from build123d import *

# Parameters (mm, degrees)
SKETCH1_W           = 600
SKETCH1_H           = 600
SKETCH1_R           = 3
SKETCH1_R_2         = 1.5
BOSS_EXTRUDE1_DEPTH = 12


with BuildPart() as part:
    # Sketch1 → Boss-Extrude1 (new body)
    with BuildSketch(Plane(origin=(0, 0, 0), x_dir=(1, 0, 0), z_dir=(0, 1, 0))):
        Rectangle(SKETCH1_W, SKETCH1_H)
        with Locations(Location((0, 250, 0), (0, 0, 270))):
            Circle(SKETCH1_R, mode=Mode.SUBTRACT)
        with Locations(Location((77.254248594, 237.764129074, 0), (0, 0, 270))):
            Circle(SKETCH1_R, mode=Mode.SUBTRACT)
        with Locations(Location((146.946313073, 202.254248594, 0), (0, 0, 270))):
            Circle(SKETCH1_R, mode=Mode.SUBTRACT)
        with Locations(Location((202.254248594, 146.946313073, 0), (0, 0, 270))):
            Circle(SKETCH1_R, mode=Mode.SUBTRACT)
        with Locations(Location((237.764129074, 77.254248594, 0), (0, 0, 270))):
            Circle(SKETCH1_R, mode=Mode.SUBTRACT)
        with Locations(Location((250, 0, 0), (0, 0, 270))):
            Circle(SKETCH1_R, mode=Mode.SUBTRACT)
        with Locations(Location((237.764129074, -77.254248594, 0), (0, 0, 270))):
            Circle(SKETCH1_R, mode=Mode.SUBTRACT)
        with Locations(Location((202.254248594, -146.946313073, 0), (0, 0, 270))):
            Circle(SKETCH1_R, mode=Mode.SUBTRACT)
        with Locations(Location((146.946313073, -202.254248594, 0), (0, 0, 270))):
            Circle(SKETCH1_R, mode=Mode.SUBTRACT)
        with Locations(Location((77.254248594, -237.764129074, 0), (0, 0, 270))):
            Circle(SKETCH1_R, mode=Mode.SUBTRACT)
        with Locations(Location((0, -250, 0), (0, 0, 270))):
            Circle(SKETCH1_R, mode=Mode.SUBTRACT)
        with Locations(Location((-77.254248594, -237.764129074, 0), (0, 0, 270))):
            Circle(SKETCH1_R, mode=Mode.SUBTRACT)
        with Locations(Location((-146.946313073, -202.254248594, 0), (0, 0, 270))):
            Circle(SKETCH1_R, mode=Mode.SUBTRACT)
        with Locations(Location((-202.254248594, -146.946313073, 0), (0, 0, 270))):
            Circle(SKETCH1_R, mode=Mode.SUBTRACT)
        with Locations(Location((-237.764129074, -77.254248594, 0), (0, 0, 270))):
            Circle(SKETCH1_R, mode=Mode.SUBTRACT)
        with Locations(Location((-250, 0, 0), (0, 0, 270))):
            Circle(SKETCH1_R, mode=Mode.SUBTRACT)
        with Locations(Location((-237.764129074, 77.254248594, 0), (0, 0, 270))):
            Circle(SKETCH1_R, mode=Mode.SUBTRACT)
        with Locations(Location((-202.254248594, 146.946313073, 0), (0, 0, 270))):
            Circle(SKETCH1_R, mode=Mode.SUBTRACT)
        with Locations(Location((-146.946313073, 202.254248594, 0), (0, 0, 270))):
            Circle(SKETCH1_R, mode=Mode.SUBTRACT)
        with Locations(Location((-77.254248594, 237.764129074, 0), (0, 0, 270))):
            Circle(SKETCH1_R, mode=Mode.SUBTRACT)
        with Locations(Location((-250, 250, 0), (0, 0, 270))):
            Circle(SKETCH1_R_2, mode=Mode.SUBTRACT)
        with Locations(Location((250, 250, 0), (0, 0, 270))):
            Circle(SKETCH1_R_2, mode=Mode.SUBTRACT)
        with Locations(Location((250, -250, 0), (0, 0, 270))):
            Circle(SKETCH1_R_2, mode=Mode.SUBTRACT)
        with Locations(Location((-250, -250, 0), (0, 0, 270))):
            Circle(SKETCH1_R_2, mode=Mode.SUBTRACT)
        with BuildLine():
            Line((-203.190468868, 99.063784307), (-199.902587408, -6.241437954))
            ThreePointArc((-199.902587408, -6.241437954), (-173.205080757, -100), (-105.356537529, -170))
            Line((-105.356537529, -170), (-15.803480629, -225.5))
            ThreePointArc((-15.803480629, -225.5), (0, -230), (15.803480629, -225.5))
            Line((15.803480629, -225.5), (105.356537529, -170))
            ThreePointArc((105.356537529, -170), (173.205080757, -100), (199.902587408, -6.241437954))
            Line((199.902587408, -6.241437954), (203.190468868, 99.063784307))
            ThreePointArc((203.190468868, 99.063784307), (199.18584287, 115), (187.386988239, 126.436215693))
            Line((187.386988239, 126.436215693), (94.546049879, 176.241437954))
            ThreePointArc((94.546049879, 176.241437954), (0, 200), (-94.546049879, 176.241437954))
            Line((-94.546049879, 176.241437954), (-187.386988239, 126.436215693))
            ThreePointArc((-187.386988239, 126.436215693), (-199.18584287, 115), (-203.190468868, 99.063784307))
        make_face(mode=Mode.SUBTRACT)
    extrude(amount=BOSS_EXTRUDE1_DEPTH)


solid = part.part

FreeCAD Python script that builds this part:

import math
import FreeCAD as App
import Part
import Sketcher
from FreeCAD import Vector

doc = App.newDocument("Part")
params = doc.addObject("Spreadsheet::Sheet", "Params")
for row, (alias, value) in enumerate([
    ("sketch1_diameter", "3 mm"),
    ("sketch1_diameter2", "6 mm"),
    ("sketch1_radius", "30 mm"),
    ("sketch1_radius2", "200 mm"),
    ("sketch1_width", "600 mm"),
    ("pad1_length", "12 mm"),
], start=1):
    params.set(f"A{row}", alias)
    params.set(f"B{row}", "=" + value)
    params.setAlias(f"B{row}", alias)

body = doc.addObject("PartDesign::Body", "Body")

# Sketch on XZ plane
sketch1 = doc.addObject("Sketcher::SketchObject", "Sketch")
body.addObject(sketch1)
sketch1.AttachmentSupport = (doc.XZ_Plane, [""])
sketch1.MapMode = "FlatFace"
sketch1.addGeometry(Part.LineSegment(Vector(-300, -300, 0), Vector(-300, 300, 0)), False)
sketch1.addGeometry(Part.LineSegment(Vector(-300, 300, 0), Vector(300, 300, 0)), False)
sketch1.addGeometry(Part.LineSegment(Vector(300, 300, 0), Vector(300, -300, 0)), False)
sketch1.addGeometry(Part.LineSegment(Vector(300, -300, 0), Vector(-300, -300, 0)), False)
sketch1.addGeometry(Part.Circle(Vector(-250, 250, 0), Vector(0, 0, 1), 1.5), False)
sketch1.addGeometry(Part.Circle(Vector(-146.9, 202.3, 0), Vector(0, 0, 1), 3), False)
sketch1.addGeometry(Part.Circle(Vector(-202.3, 146.9, 0), Vector(0, 0, 1), 3), False)
sketch1.addGeometry(Part.Circle(Vector(-77.3, 237.8, 0), Vector(0, 0, 1), 3), False)
sketch1.addGeometry(Part.Circle(Vector(0, 250, 0), Vector(0, 0, 1), 3), False)
sketch1.addGeometry(Part.Circle(Vector(-237.8, 77.3, 0), Vector(0, 0, 1), 3), False)
sketch1.addGeometry(Part.Circle(Vector(-250, 0, 0), Vector(0, 0, 1), 3), False)
sketch1.addGeometry(Part.LineSegment(Vector(-199.9, 6.2, 0), Vector(-203.2, -99.1, 0)), False)
sketch1.addGeometry(Part.ArcOfCircle(Part.Circle(Vector(-173.2, -100, 0), Vector(0, 0, 1), 30), math.radians(178), math.radians(242)), False)
sketch1.addGeometry(Part.LineSegment(Vector(-187.4, -126.4, 0), Vector(-94.5, -176.2, 0)), False)
sketch1.addGeometry(Part.ArcOfCircle(Part.Circle(Vector(0, 0, 0), Vector(0, 0, 1), 200), math.radians(-118), math.radians(-62)), False)
sketch1.addGeometry(Part.LineSegment(Vector(94.5, -176.2, 0), Vector(187.4, -126.4, 0)), False)
sketch1.addGeometry(Part.ArcOfCircle(Part.Circle(Vector(173.2, -100, 0), Vector(0, 0, 1), 30), math.radians(-62), math.radians(2)), False)
sketch1.addGeometry(Part.LineSegment(Vector(203.2, -99.1, 0), Vector(199.9, 6.2, 0)), False)
sketch1.addGeometry(Part.ArcOfCircle(Part.Circle(Vector(0, 0, 0), Vector(0, 0, 1), 200), math.radians(2), math.radians(58)), False)
sketch1.addGeometry(Part.LineSegment(Vector(105.4, 170, 0), Vector(15.8, 225.5, 0)), False)
sketch1.addGeometry(Part.ArcOfCircle(Part.Circle(Vector(0, 200, 0), Vector(0, 0, 1), 30), math.radians(58), math.radians(122)), False)
sketch1.addGeometry(Part.LineSegment(Vector(-15.8, 225.5, 0), Vector(-105.4, 170, 0)), False)
sketch1.addGeometry(Part.ArcOfCircle(Part.Circle(Vector(0, 0, 0), Vector(0, 0, 1), 200), math.radians(122), math.radians(178)), False)
sketch1.addGeometry(Part.Circle(Vector(77.3, 237.8, 0), Vector(0, 0, 1), 3), False)
sketch1.addGeometry(Part.Circle(Vector(146.9, 202.3, 0), Vector(0, 0, 1), 3), False)
sketch1.addGeometry(Part.Circle(Vector(250, 250, 0), Vector(0, 0, 1), 1.5), False)
sketch1.addGeometry(Part.Circle(Vector(202.3, 146.9, 0), Vector(0, 0, 1), 3), False)
sketch1.addGeometry(Part.Circle(Vector(237.8, 77.3, 0), Vector(0, 0, 1), 3), False)
sketch1.addGeometry(Part.Circle(Vector(250, 0, 0), Vector(0, 0, 1), 3), False)
sketch1.addGeometry(Part.Circle(Vector(-237.8, -77.3, 0), Vector(0, 0, 1), 3), False)
sketch1.addGeometry(Part.Circle(Vector(-202.3, -146.9, 0), Vector(0, 0, 1), 3), False)
sketch1.addGeometry(Part.Circle(Vector(-250, -250, 0), Vector(0, 0, 1), 1.5), False)
sketch1.addGeometry(Part.Circle(Vector(-146.9, -202.3, 0), Vector(0, 0, 1), 3), False)
sketch1.addGeometry(Part.Circle(Vector(-77.3, -237.8, 0), Vector(0, 0, 1), 3), False)
sketch1.addGeometry(Part.Circle(Vector(0, -250, 0), Vector(0, 0, 1), 3), False)
sketch1.addGeometry(Part.Circle(Vector(237.8, -77.3, 0), Vector(0, 0, 1), 3), False)
sketch1.addGeometry(Part.Circle(Vector(77.3, -237.8, 0), Vector(0, 0, 1), 3), False)
sketch1.addGeometry(Part.Circle(Vector(202.3, -146.9, 0), Vector(0, 0, 1), 3), False)
sketch1.addGeometry(Part.Circle(Vector(146.9, -202.3, 0), Vector(0, 0, 1), 3), False)
sketch1.addGeometry(Part.Circle(Vector(250, -250, 0), Vector(0, 0, 1), 1.5), False)
sketch1.addConstraint(Sketcher.Constraint("Coincident", 0, 2, 1, 1))
sketch1.addConstraint(Sketcher.Constraint("Coincident", 1, 2, 2, 1))
sketch1.addConstraint(Sketcher.Constraint("Coincident", 2, 2, 3, 1))
sketch1.addConstraint(Sketcher.Constraint("Coincident", 3, 2, 0, 1))
sketch1.addConstraint(Sketcher.Constraint("Tangent", 11, 2, 12, 1))
sketch1.addConstraint(Sketcher.Constraint("Tangent", 12, 2, 13, 1))
sketch1.addConstraint(Sketcher.Constraint("Tangent", 13, 2, 14, 1))
sketch1.addConstraint(Sketcher.Constraint("Tangent", 14, 2, 15, 1))
sketch1.addConstraint(Sketcher.Constraint("Tangent", 15, 2, 16, 1))
sketch1.addConstraint(Sketcher.Constraint("Tangent", 16, 2, 17, 1))
sketch1.addConstraint(Sketcher.Constraint("Tangent", 17, 2, 18, 1))
sketch1.addConstraint(Sketcher.Constraint("Tangent", 18, 2, 19, 1))
sketch1.addConstraint(Sketcher.Constraint("Tangent", 19, 2, 20, 1))
sketch1.addConstraint(Sketcher.Constraint("Tangent", 20, 2, 21, 1))
sketch1.addConstraint(Sketcher.Constraint("Tangent", 21, 2, 22, 1))
sketch1.addConstraint(Sketcher.Constraint("Tangent", 22, 2, 11, 1))
sketch1.addConstraint(Sketcher.Constraint("Vertical", 0))
sketch1.addConstraint(Sketcher.Constraint("Horizontal", 1))
sketch1.addConstraint(Sketcher.Constraint("Vertical", 2))
sketch1.addConstraint(Sketcher.Constraint("Horizontal", 3))
sketch1.addConstraint(Sketcher.Constraint("Coincident", 14, 3, -1, 1))
sketch1.addConstraint(Sketcher.Constraint("Coincident", 18, 3, -1, 1))
sketch1.addConstraint(Sketcher.Constraint("Coincident", 22, 3, -1, 1))
sketch1.addConstraint(Sketcher.Constraint("Equal", 5, 6))
sketch1.addConstraint(Sketcher.Constraint("Equal", 6, 7))
sketch1.addConstraint(Sketcher.Constraint("Equal", 7, 8))
sketch1.addConstraint(Sketcher.Constraint("Equal", 8, 9))
sketch1.addConstraint(Sketcher.Constraint("Equal", 9, 10))
sketch1.addConstraint(Sketcher.Constraint("Equal", 12, 16))
sketch1.addConstraint(Sketcher.Constraint("Equal", 14, 18))
sketch1.addConstraint(Sketcher.Constraint("Equal", 16, 20))
sketch1.addConstraint(Sketcher.Constraint("Equal", 18, 22))
sketch1.addConstraint(Sketcher.Constraint("Equal", 10, 23))
sketch1.addConstraint(Sketcher.Constraint("Equal", 23, 24))
sketch1.addConstraint(Sketcher.Constraint("Equal", 4, 25))
sketch1.addConstraint(Sketcher.Constraint("Equal", 24, 26))
sketch1.addConstraint(Sketcher.Constraint("Equal", 26, 27))
sketch1.addConstraint(Sketcher.Constraint("Equal", 27, 28))
sketch1.addConstraint(Sketcher.Constraint("Equal", 28, 29))
sketch1.addConstraint(Sketcher.Constraint("Equal", 29, 30))
sketch1.addConstraint(Sketcher.Constraint("Equal", 25, 31))
sketch1.addConstraint(Sketcher.Constraint("Equal", 30, 32))
sketch1.addConstraint(Sketcher.Constraint("Equal", 32, 33))
sketch1.addConstraint(Sketcher.Constraint("Equal", 33, 34))
sketch1.addConstraint(Sketcher.Constraint("Equal", 34, 35))
sketch1.addConstraint(Sketcher.Constraint("Equal", 35, 36))
sketch1.addConstraint(Sketcher.Constraint("Equal", 36, 37))
sketch1.addConstraint(Sketcher.Constraint("Equal", 37, 38))
sketch1.addConstraint(Sketcher.Constraint("Equal", 31, 39))
sketch1.addConstraint(Sketcher.Constraint("Symmetric", 10, 3, 28, 3, -1, 1))
sketch1.addConstraint(Sketcher.Constraint("Symmetric", 27, 3, 29, 3, -1, 1))
sketch1.addConstraint(Sketcher.Constraint("Symmetric", 26, 3, 30, 3, -1, 1))
sketch1.addConstraint(Sketcher.Constraint("Symmetric", 25, 3, 31, 3, -1, 1))
sketch1.addConstraint(Sketcher.Constraint("Symmetric", 24, 3, 32, 3, -1, 1))
sketch1.addConstraint(Sketcher.Constraint("Symmetric", 23, 3, 33, 3, -1, 1))
sketch1.addConstraint(Sketcher.Constraint("Symmetric", 8, 3, 34, 3, -1, 1))
sketch1.addConstraint(Sketcher.Constraint("Symmetric", 9, 3, 35, 3, -1, 1))
sketch1.addConstraint(Sketcher.Constraint("Symmetric", 7, 3, 36, 3, -1, 1))
sketch1.addConstraint(Sketcher.Constraint("Symmetric", 6, 3, 37, 3, -1, 1))
sketch1.addConstraint(Sketcher.Constraint("Symmetric", 5, 3, 38, 3, -1, 1))
sketch1.addConstraint(Sketcher.Constraint("Symmetric", 4, 3, 39, 3, -1, 1))
sketch1.addConstraint(Sketcher.Constraint("Symmetric", 0, 2, 2, 2, -1, 1))
sketch1.addConstraint(Sketcher.Constraint("Symmetric", 12, 3, 16, 3, -2))
sketch1.addConstraint(Sketcher.Constraint("Symmetric", 7, 3, 23, 3, -2))
sketch1.addConstraint(Sketcher.Constraint("Symmetric", 5, 3, 24, 3, -2))
sketch1.addConstraint(Sketcher.Constraint("Symmetric", 4, 3, 25, 3, -2))
sketch1.addConstraint(Sketcher.Constraint("Symmetric", 6, 3, 26, 3, -2))
sketch1.addConstraint(Sketcher.Constraint("Symmetric", 9, 3, 27, 3, -2))
sketch1.addConstraint(Sketcher.Constraint("PointOnObject", 8, 3, -2))
sketch1.addConstraint(Sketcher.Constraint("PointOnObject", 10, 3, -1))
sketch1.addConstraint(Sketcher.Constraint("PointOnObject", 20, 3, -2))
sketch1.addConstraint(Sketcher.Constraint("Horizontal", 4, 3, 8, 3))
sketch1.addConstraint(Sketcher.Constraint("Vertical", 4, 3, 10, 3))
sketch1.addConstraint(Sketcher.Constraint("Equal", 3, 0))
sketch1.addConstraint(Sketcher.Constraint("Equal", 17, 19))
sketch1.addConstraint(Sketcher.Constraint("Diameter", 4, 3.0))
sketch1.addConstraint(Sketcher.Constraint("Diameter", 5, 6.0))
sketch1.addConstraint(Sketcher.Constraint("Radius", 12, 30.0))
sketch1.addConstraint(Sketcher.Constraint("Radius", 14, 200.0))
sketch1.addConstraint(Sketcher.Constraint("DistanceX", 1, 1, 1, 2, 600.0))
sketch1.addConstraint(Sketcher.Constraint("DistanceX", 4, 3, -1, 1, 250.0))
sketch1.addConstraint(Sketcher.Constraint("DistanceY", -1, 1, 4, 3, 250.0))
sketch1.addConstraint(Sketcher.Constraint("DistanceY", 12, 3, -1, 1, 100.0))
sketch1.addConstraint(Sketcher.Constraint("DistanceY", -1, 1, 20, 3, 200.0))
sketch1.addConstraint(Sketcher.Constraint("DistanceX", 6, 3, 7, 3, 125.0))
sketch1.addConstraint(Sketcher.Constraint("DistanceY", 9, 3, 5, 3, 125.0))
sketch1.addConstraint(Sketcher.Constraint("DistanceX", 13, 2, 33, 3, 17.291801))
sketch1.addConstraint(Sketcher.Constraint("DistanceY", -1, 1, 5, 3, 202.254249))
sketch1.addConstraint(Sketcher.Constraint("DistanceY", -1, 1, 7, 3, 237.764129))
sketch1.addConstraint(Sketcher.Constraint("DistanceX", 9, 3, -1, 1, 237.764129))
sketch1.addConstraint(Sketcher.Constraint("DistanceX", 5, 3, 23, 3, 224.200562))
sketch1.addConstraint(Sketcher.Constraint("DistanceY", 29, 3, 6, 3, 224.200562))
sketch1.setExpression("Constraints[75]", "Params.sketch1_diameter")
sketch1.setExpression("Constraints[76]", "Params.sketch1_diameter2")
sketch1.setExpression("Constraints[77]", "Params.sketch1_radius")
sketch1.setExpression("Constraints[78]", "Params.sketch1_radius2")
sketch1.setExpression("Constraints[79]", "Params.sketch1_width")
pad1 = doc.addObject("PartDesign::Pad", "Pad")
body.addObject(pad1)
pad1.Profile = sketch1
pad1.setExpression("Length", "Params.pad1_length")
pad1.Reversed = True

doc.recompute()
